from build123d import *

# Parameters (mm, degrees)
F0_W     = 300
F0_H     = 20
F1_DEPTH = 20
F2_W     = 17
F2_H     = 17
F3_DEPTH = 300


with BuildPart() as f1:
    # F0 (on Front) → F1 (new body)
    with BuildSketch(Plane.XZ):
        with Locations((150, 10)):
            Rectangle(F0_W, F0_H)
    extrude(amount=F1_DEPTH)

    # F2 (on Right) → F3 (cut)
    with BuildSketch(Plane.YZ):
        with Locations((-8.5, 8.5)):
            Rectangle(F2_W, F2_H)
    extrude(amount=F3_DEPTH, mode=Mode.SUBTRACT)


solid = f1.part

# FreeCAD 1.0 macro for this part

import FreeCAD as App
import Part
import Sketcher


def add_polygon(sketch, points):
    """Adds a closed chain of lines whose ends are joined by coincident constraints."""
    first, n = sketch.GeometryCount, len(points)
    for a, b in zip(points, points[1:] + points[:1]):
        sketch.addGeometry(Part.LineSegment(App.Vector(*a, 0), App.Vector(*b, 0)), False)
    for i in range(n):
        sketch.addConstraint(Sketcher.Constraint("Coincident", first + i, 2, first + (i + 1) % n, 1))

doc = App.newDocument("Part")
body = doc.addObject("PartDesign::Body", "Body")

sketch1 = body.newObject("Sketcher::SketchObject", "Sketch")
sketch1.AttachmentSupport = (doc.getObject("XZ_Plane"), [""])
sketch1.MapMode = "FlatFace"
add_polygon(sketch1, [(0, 20), (0, 0), (300, 0), (300, 20)])
sketch1.addConstraint(Sketcher.Constraint("Vertical", 0))
sketch1.addConstraint(Sketcher.Constraint("Horizontal", 1))
sketch1.addConstraint(Sketcher.Constraint("Vertical", 2))
sketch1.addConstraint(Sketcher.Constraint("Horizontal", 3))
sketch1.addConstraint(Sketcher.Constraint("Coincident", 0, 2, -1, 1))
sketch1.addConstraint(Sketcher.Constraint("DistanceX", 1, 1, 1, 2, 300.0))
sketch1.addConstraint(Sketcher.Constraint("DistanceY", 0, 2, 0, 1, 20.0))
pad1 = body.newObject("PartDesign::Pad", "Pad")
pad1.Profile = sketch1
pad1.Length = 20

sketch2 = body.newObject("Sketcher::SketchObject", "Sketch001")
sketch2.AttachmentSupport = (doc.getObject("YZ_Plane"), [""])
sketch2.MapMode = "FlatFace"
add_polygon(sketch2, [(-17, 17), (-17, 0), (0, 0), (0, 17)])
sketch2.addConstraint(Sketcher.Constraint("Vertical", 0))
sketch2.addConstraint(Sketcher.Constraint("Horizontal", 1))
sketch2.addConstraint(Sketcher.Constraint("Vertical", 2))
sketch2.addConstraint(Sketcher.Constraint("Horizontal", 3))
sketch2.addConstraint(Sketcher.Constraint("Coincident", 1, 2, -1, 1))
sketch2.addConstraint(Sketcher.Constraint("Equal", 3, 0))
sketch2.addConstraint(Sketcher.Constraint("DistanceX", 1, 1, 1, 2, 17.0))
pocket1 = body.newObject("PartDesign::Pocket", "Pocket")
pocket1.Profile = sketch2
pocket1.Length = 300
pocket1.Reversed = True

doc.recompute()
